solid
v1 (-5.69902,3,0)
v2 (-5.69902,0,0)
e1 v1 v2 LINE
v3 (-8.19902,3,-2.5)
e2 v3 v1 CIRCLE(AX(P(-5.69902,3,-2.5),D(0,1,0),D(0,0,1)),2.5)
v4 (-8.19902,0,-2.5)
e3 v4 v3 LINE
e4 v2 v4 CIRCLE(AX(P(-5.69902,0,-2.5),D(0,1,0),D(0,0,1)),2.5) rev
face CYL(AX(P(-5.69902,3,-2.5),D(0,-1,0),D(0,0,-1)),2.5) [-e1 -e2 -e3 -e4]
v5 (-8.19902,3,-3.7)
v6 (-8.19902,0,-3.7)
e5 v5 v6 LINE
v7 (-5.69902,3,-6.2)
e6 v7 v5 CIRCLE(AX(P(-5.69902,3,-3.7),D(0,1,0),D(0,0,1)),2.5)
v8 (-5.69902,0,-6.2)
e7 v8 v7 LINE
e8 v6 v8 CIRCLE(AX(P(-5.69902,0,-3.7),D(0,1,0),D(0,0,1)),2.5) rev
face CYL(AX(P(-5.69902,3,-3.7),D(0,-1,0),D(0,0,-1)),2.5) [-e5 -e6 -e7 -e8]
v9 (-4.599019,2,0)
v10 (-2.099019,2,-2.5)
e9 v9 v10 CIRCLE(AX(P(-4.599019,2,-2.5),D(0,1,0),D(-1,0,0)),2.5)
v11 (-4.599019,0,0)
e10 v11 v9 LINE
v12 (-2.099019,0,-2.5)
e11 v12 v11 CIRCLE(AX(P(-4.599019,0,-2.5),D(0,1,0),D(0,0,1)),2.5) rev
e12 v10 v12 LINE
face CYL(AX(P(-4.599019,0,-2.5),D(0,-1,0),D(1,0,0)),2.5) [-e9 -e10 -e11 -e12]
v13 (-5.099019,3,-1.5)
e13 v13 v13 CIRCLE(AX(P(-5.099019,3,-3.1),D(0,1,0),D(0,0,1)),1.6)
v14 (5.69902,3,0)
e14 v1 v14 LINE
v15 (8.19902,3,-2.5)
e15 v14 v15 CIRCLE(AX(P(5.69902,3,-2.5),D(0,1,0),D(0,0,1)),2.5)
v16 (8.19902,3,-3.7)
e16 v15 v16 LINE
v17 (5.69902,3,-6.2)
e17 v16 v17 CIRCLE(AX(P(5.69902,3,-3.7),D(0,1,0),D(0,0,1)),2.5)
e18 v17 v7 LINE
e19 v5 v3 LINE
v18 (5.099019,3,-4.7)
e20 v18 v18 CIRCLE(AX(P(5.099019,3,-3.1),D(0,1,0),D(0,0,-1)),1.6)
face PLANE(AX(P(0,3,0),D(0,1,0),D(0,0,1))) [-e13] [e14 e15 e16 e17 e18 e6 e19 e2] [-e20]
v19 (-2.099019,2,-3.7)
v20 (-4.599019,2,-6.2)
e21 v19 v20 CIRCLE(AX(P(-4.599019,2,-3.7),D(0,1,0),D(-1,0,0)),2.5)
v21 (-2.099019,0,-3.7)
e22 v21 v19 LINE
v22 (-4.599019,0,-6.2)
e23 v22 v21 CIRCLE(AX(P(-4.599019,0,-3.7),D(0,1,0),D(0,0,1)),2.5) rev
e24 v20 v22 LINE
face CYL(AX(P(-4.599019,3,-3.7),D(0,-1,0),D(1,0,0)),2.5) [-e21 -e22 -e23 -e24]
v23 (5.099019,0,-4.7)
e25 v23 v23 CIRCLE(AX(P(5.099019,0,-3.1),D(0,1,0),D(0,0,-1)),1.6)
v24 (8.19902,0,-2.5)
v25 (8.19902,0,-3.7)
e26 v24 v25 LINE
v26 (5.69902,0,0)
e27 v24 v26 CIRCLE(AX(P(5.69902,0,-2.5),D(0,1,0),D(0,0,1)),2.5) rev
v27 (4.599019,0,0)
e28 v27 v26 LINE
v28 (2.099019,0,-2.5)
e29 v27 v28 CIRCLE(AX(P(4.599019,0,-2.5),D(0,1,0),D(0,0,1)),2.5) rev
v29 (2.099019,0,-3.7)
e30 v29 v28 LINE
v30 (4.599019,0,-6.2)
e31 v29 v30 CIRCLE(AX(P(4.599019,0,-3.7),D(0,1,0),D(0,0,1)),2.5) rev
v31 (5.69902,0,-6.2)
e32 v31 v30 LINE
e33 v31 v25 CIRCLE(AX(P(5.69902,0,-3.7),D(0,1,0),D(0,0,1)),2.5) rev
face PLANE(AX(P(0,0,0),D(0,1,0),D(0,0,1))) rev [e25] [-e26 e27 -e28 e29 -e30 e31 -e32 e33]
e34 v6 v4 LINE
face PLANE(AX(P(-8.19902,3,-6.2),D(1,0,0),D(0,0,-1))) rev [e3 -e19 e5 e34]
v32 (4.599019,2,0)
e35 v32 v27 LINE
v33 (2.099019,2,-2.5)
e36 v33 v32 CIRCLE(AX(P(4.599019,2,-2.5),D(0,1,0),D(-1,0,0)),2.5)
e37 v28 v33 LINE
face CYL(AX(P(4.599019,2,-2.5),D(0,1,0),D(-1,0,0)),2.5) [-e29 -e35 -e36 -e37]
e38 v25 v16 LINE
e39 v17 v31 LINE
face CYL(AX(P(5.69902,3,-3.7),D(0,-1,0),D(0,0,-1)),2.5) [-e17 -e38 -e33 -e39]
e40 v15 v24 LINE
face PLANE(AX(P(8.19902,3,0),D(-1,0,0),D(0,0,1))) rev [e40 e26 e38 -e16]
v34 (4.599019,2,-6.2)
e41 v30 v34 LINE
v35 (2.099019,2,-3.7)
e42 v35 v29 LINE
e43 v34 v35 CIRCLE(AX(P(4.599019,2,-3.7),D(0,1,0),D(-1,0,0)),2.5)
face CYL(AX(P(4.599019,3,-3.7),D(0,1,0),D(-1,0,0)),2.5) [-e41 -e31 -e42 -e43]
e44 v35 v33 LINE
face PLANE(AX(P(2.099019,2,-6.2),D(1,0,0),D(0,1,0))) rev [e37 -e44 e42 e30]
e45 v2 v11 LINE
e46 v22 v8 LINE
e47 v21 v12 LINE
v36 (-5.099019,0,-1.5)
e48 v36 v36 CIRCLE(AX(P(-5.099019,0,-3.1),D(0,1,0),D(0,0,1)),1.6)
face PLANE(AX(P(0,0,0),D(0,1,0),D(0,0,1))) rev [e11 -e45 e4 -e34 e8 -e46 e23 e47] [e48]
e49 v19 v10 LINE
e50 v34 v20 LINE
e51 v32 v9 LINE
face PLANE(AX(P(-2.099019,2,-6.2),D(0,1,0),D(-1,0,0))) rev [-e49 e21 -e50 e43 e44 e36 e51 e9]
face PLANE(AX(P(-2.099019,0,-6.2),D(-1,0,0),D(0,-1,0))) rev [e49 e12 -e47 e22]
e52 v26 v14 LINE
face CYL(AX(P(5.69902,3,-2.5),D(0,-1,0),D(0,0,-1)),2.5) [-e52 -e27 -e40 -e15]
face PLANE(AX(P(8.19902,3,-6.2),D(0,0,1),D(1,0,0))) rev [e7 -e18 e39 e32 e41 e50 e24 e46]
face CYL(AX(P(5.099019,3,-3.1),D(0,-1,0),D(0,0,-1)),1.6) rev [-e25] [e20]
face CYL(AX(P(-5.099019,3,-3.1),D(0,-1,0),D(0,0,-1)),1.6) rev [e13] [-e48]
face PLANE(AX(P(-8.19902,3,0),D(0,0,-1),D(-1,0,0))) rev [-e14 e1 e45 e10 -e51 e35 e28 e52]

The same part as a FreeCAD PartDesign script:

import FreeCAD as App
import Part
import Sketcher

V = App.Vector
Q = App.Units.Quantity


def edges_at(feature, points):
    """Names of the edges that pass closest to the given points."""
    edges = feature.Shape.Edges
    near = lambda p: min(range(len(edges)), key=lambda i: edges[i].distToShape(Part.Vertex(*p))[0])
    return sorted({f"Edge{near(p) + 1}" for p in points})

doc = App.newDocument("Part")
params = doc.addObject("Spreadsheet::Sheet", "Params")
for row, (alias, value) in enumerate([
    ("sketch1_diameter", "3.2 mm"),
    ("sketch1_height", "6.2 mm"),
    ("pad1_length", "3 mm"),
    ("sketch2_height", "2 mm"),
    ("fillet_radius", "2.5 mm"),
], start=1):
    params.set(f"A{row}", alias)
    params.set(f"B{row}", "=" + value)
    params.setAlias(f"B{row}", alias)

body = doc.addObject("PartDesign::Body", "Body")

# Sketch on XZ plane
sketch1 = body.newObject("Sketcher::SketchObject", "Sketch")
sketch1.AttachmentSupport = (doc.getObject("XZ_Plane"), [""])
sketch1.MapMode = "FlatFace"
sketch1.addGeometry(Part.LineSegment(V(-8.19902, -6.2, 0), V(-8.19902, 0, 0)), False)
sketch1.addGeometry(Part.LineSegment(V(-8.19902, 0, 0), V(8.19902, 0, 0)), False)
sketch1.addGeometry(Part.LineSegment(V(8.19902, 0, 0), V(8.19902, -6.2, 0)), False)
sketch1.addGeometry(Part.LineSegment(V(8.19902, -6.2, 0), V(-8.19902, -6.2, 0)), False)
sketch1.addGeometry(Part.Circle(V(-5.099019, -3.1, 0), V(0, 0, 1), 1.6), False)
sketch1.addGeometry(Part.Circle(V(5.099019, -3.1, 0), V(0, 0, 1), 1.6), False)
sketch1.addConstraint(Sketcher.Constraint("Coincident", 0, 2, 1, 1))
sketch1.addConstraint(Sketcher.Constraint("Coincident", 1, 2, 2, 1))
sketch1.addConstraint(Sketcher.Constraint("Coincident", 2, 2, 3, 1))
sketch1.addConstraint(Sketcher.Constraint("Coincident", 3, 2, 0, 1))
sketch1.addConstraint(Sketcher.Constraint("Vertical", 0))
sketch1.addConstraint(Sketcher.Constraint("Horizontal", 1))
sketch1.addConstraint(Sketcher.Constraint("Vertical", 2))
sketch1.addConstraint(Sketcher.Constraint("Horizontal", 3))
sketch1.addConstraint(Sketcher.Constraint("Equal", 4, 5))
sketch1.addConstraint(Sketcher.Constraint("Symmetric", 0, 2, 1, 2, -1, 1))
sketch1.addConstraint(Sketcher.Constraint("Symmetric", 4, 3, 5, 3, -2))
sketch1.addConstraint(Sketcher.Constraint("Diameter", 4, Q("3.2 mm")))
sketch1.addConstraint(Sketcher.Constraint("DistanceY", 0, 1, 0, 2, Q("6.2 mm")))
sketch1.addConstraint(Sketcher.Constraint("DistanceY", 4, 3, -1, 1, Q("3.1 mm")))
sketch1.addConstraint(Sketcher.Constraint("DistanceX", 0, 2, 4, 3, Q("3.1 mm")))
sketch1.addConstraint(Sketcher.Constraint("DistanceX", 1, 1, 1, 2, Q("16.398039 mm")))
sketch1.setExpression("Constraints[11]", "Params.sketch1_diameter")
sketch1.setExpression("Constraints[12]", "Params.sketch1_height")
pad1 = body.newObject("PartDesign::Pad", "Pad")
pad1.Profile = sketch1
pad1.setExpression("Length", "Params.pad1_length")
pad1.Reversed = True

# Sketch on XY plane
sketch2 = body.newObject("Sketcher::SketchObject", "Sketch001")
sketch2.AttachmentSupport = (doc.getObject("XY_Plane"), [""])
sketch2.MapMode = "FlatFace"
sketch2.addGeometry(Part.LineSegment(V(-2.099019, 2, 0), V(-2.099019, 0, 0)), False)
sketch2.addGeometry(Part.LineSegment(V(-2.099019, 0, 0), V(2.099019, 0, 0)), False)
sketch2.addGeometry(Part.LineSegment(V(2.099019, 0, 0), V(2.099019, 2, 0)), False)
sketch2.addGeometry(Part.LineSegment(V(2.099019, 2, 0), V(-2.099019, 2, 0)), False)
sketch2.addConstraint(Sketcher.Constraint("Coincident", 0, 2, 1, 1))
sketch2.addConstraint(Sketcher.Constraint("Coincident", 1, 2, 2, 1))
sketch2.addConstraint(Sketcher.Constraint("Coincident", 2, 2, 3, 1))
sketch2.addConstraint(Sketcher.Constraint("Coincident", 3, 2, 0, 1))
sketch2.addConstraint(Sketcher.Constraint("Vertical", 0))
sketch2.addConstraint(Sketcher.Constraint("Horizontal", 1))
sketch2.addConstraint(Sketcher.Constraint("Vertical", 2))
sketch2.addConstraint(Sketcher.Constraint("Horizontal", 3))
sketch2.addConstraint(Sketcher.Constraint("Symmetric", 0, 2, 1, 2, -1, 1))
sketch2.addConstraint(Sketcher.Constraint("DistanceY", 0, 2, 0, 1, Q("2 mm")))
sketch2.addConstraint(Sketcher.Constraint("DistanceX", 1, 1, 1, 2, Q("4.198039 mm")))
sketch2.setExpression("Constraints[9]", "Params.sketch2_height")
pocket1 = body.newObject("PartDesign::Pocket", "Pocket")
pocket1.Profile = sketch2
pocket1.Type = "ThroughAll"
doc.recompute()

fillet = body.newObject("PartDesign::Fillet", "Fillet")
fillet.Base = (pocket1, edges_at(pocket1, [
    (-2.099, 1, -6.2),
    (2.099, 1, -6.2),
    (2.099, 1, 0),
    (-2.099, 1, 0),
    (-8.199, 1.5, -6.2),
    (8.199, 1.5, -6.2),
    (8.199, 1.5, 0),
    (-8.199, 1.5, 0),
]))
fillet.setExpression("Radius", "Params.fillet_radius")

doc.recompute()
